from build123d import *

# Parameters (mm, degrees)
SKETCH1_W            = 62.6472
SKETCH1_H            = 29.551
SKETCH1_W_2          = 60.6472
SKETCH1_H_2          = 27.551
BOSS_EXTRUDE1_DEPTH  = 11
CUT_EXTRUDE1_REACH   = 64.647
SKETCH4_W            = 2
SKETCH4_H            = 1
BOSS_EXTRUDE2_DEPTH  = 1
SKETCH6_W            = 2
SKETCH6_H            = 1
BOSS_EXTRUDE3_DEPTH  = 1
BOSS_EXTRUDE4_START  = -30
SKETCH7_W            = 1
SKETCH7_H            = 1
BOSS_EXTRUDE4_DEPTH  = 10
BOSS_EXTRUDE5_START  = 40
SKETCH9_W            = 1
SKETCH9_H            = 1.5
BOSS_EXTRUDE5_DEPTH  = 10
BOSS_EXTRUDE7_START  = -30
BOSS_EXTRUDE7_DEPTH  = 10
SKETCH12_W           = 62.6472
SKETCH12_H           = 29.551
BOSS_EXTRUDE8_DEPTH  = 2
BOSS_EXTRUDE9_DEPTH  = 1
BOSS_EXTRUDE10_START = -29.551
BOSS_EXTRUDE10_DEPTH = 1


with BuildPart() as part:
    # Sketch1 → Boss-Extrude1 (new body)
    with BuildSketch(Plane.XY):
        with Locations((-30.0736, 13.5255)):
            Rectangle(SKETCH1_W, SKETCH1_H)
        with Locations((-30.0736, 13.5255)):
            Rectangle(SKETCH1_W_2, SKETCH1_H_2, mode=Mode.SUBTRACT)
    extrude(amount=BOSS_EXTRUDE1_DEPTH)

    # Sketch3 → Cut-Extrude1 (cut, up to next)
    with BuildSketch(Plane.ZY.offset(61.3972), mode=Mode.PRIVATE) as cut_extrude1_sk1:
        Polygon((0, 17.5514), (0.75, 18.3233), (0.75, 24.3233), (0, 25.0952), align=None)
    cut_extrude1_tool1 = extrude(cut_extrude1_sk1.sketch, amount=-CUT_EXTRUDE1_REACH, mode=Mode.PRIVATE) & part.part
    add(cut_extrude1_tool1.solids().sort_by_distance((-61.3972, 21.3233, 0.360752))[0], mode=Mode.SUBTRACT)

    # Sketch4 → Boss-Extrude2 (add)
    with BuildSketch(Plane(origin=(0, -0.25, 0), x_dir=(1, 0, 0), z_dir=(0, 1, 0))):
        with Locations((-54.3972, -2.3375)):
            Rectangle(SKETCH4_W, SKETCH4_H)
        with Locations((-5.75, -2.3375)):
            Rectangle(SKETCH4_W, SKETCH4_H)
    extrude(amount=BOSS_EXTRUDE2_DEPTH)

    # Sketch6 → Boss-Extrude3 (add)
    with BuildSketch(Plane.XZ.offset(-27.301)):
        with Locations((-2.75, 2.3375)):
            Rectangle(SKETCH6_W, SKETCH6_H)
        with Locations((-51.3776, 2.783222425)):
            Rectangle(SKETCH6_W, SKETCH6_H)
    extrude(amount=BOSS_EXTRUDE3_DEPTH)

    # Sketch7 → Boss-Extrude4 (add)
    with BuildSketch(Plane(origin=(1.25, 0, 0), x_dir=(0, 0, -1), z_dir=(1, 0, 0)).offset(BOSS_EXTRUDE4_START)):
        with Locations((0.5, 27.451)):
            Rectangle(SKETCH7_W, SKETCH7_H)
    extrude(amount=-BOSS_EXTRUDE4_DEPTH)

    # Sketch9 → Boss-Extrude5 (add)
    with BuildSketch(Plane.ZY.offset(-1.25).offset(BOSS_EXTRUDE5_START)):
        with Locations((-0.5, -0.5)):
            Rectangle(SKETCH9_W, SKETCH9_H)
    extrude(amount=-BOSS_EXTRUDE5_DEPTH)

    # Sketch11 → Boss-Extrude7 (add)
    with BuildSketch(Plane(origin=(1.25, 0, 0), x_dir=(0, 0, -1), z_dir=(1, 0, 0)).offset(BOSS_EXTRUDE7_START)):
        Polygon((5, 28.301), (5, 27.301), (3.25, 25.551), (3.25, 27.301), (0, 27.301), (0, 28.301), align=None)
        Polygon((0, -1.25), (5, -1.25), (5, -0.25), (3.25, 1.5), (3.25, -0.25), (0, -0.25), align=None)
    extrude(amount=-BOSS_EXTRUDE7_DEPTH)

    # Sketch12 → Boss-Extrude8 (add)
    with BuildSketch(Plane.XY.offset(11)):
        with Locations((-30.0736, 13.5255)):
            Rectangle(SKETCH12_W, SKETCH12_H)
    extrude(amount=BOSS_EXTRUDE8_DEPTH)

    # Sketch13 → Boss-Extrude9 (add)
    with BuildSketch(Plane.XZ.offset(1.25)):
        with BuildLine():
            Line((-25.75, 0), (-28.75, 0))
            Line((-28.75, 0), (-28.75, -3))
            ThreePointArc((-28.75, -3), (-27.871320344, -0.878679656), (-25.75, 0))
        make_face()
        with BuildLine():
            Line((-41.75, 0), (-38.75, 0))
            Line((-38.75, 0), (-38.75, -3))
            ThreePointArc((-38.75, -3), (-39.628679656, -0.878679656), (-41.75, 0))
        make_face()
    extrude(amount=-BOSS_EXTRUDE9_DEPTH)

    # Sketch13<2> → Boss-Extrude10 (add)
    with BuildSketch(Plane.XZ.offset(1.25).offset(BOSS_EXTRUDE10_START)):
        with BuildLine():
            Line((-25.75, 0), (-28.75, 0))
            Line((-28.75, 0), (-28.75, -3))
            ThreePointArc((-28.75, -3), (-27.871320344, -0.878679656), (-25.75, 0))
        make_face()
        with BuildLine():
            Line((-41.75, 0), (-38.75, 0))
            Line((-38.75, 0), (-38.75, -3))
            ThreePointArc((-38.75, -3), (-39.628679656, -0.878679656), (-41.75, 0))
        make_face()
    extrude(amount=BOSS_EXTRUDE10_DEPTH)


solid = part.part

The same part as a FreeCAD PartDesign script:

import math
import FreeCAD as App
import Part
import Sketcher
from FreeCAD import Vector
Q = App.Units.Quantity


def add_polygon(sketch, points):
    """Adds a closed chain of lines whose ends are joined by coincident constraints."""
    first, n = sketch.GeometryCount, len(points)
    for a, b in zip(points, points[1:] + points[:1]):
        sketch.addGeometry(Part.LineSegment(App.Vector(*a, 0), App.Vector(*b, 0)), False)
    for i in range(n):
        sketch.addConstraint(Sketcher.Constraint("Coincident", first + i, 2, first + (i + 1) % n, 1))

doc = App.newDocument("Part")
params = doc.addObject("Spreadsheet::Sheet", "Params")
for row, (alias, value) in enumerate([
    ("pad1_length", "11 mm"),
    ("sketch2_width", "6 mm"),
    ("sketch3_width", "2 mm"),
    ("sketch3_height", "1 mm"),
    ("pad2_length", "1 mm"),
    ("sketch4_width", "2 mm"),
    ("sketch4_height", "1 mm"),
    ("pad3_length", "1 mm"),
    ("sketch5_width", "1 mm"),
    ("pad4_length", "10 mm"),
    ("sketch6_height", "1 mm"),
    ("sketch6_width", "1.5 mm"),
    ("pad5_length", "10 mm"),
    ("sketch7_width", "1 mm"),
    ("sketch7_height", "5 mm"),
    ("sketch7_width2", "1.75 mm"),
    ("pad6_length", "10 mm"),
    ("pad7_length", "2 mm"),
    ("sketch9_radius", "3 mm"),
    ("pad8_length", "1 mm"),
    ("sketch10_radius", "3 mm"),
    ("pad9_length", "1 mm"),
], start=1):
    params.set(f"A{row}", alias)
    params.set(f"B{row}", "=" + value)
    params.setAlias(f"B{row}", alias)

body = doc.addObject("PartDesign::Body", "Body")

# Sketch on XY plane
sketch1 = body.newObject("Sketcher::SketchObject", "Sketch")
sketch1.AttachmentSupport = (doc.getObject("XY_Plane"), [""])
sketch1.MapMode = "FlatFace"
add_polygon(sketch1, [(-61, 28), (-61, -1), (1, -1), (1, 28)])  # lines 0-3
add_polygon(sketch1, [(0, 0), (-60, 0), (-60, 27), (0, 27)])  # lines 4-7
sketch1.addConstraint(Sketcher.Constraint("Vertical", 0))
sketch1.addConstraint(Sketcher.Constraint("Horizontal", 1))
sketch1.addConstraint(Sketcher.Constraint("Vertical", 2))
sketch1.addConstraint(Sketcher.Constraint("Horizontal", 3))
sketch1.addConstraint(Sketcher.Constraint("Horizontal", 4))
sketch1.addConstraint(Sketcher.Constraint("Vertical", 5))
sketch1.addConstraint(Sketcher.Constraint("Horizontal", 6))
sketch1.addConstraint(Sketcher.Constraint("Vertical", 7))
sketch1.addConstraint(Sketcher.Constraint("DistanceX", 0, 2, 4, 2, Q("1 mm")))
sketch1.addConstraint(Sketcher.Constraint("DistanceY", 0, 2, 4, 2, Q("1 mm")))
sketch1.addConstraint(Sketcher.Constraint("DistanceY", 5, 2, 3, 2, Q("1 mm")))
sketch1.addConstraint(Sketcher.Constraint("DistanceX", 6, 2, 2, 2, Q("1 mm")))
sketch1.addConstraint(Sketcher.Constraint("DistanceY", 0, 2, 0, 1, Q("29.551 mm")))
sketch1.addConstraint(Sketcher.Constraint("DistanceY", 0, 2, -1, 1, Q("1.25 mm")))
sketch1.addConstraint(Sketcher.Constraint("DistanceX", -1, 1, 1, 2, Q("1.25 mm")))
sketch1.addConstraint(Sketcher.Constraint("DistanceX", 1, 1, 1, 2, Q("62.6472 mm")))
pad1 = body.newObject("PartDesign::Pad", "Pad")
pad1.Profile = sketch1
pad1.setExpression("Length", "Params.pad1_length")

# Sketch on YZ plane
sketch2 = body.newObject("Sketcher::SketchObject", "Sketch001")
sketch2.AttachmentSupport = (doc.getObject("YZ_Plane"), [""])
sketch2.MapMode = "FlatFace"
sketch2.AttachmentOffset = App.Placement(Vector(0, 0, -61.3972), App.Rotation())
add_polygon(sketch2, [(17.6, 0), (18.3, 0.8), (24.3, 0.8), (25.1, 0)])  # lines 0-3
sketch2.addConstraint(Sketcher.Constraint("Horizontal", 1))
sketch2.addConstraint(Sketcher.Constraint("Horizontal", 3))
sketch2.addConstraint(Sketcher.Constraint("PointOnObject", 2, 2, -1))
sketch2.addConstraint(Sketcher.Constraint("Equal", 0, 2))
sketch2.addConstraint(Sketcher.Constraint("DistanceX", 1, 1, 1, 2, Q("6 mm")))
sketch2.addConstraint(Sketcher.Constraint("DistanceY", -1, 1, 0, 2, Q("0.75 mm")))
sketch2.addConstraint(Sketcher.Constraint("DistanceX", 3, 2, 3, 1, Q("7.5438 mm")))
sketch2.addConstraint(Sketcher.Constraint("DistanceX", -1, 1, 0, 2, Q("18.3233 mm")))
sketch2.setExpression("Constraints[8]", "Params.sketch2_width")
pocket1 = body.newObject("PartDesign::Pocket", "Pocket")
pocket1.Profile = sketch2
pocket1.Type = "UpToFirst"
pocket1.Reversed = True

# Sketch on XZ plane
sketch3 = body.newObject("Sketcher::SketchObject", "Sketch002")
sketch3.AttachmentSupport = (doc.getObject("XZ_Plane"), [""])
sketch3.MapMode = "FlatFace"
sketch3.AttachmentOffset = App.Placement(Vector(0, 0, 0.25), App.Rotation())
add_polygon(sketch3, [(-55.4, 1.8), (-55.4, 2.8), (-53.4, 2.8), (-53.4, 1.8)])  # lines 0-3
add_polygon(sketch3, [(-6.8, 1.8), (-6.8, 2.8), (-4.8, 2.8), (-4.8, 1.8)])  # lines 4-7
sketch3.addConstraint(Sketcher.Constraint("Vertical", 0))
sketch3.addConstraint(Sketcher.Constraint("Horizontal", 1))
sketch3.addConstraint(Sketcher.Constraint("Vertical", 2))
sketch3.addConstraint(Sketcher.Constraint("Horizontal", 3))
sketch3.addConstraint(Sketcher.Constraint("Vertical", 4))
sketch3.addConstraint(Sketcher.Constraint("Horizontal", 5))
sketch3.addConstraint(Sketcher.Constraint("Vertical", 6))
sketch3.addConstraint(Sketcher.Constraint("Horizontal", 7))
sketch3.addConstraint(Sketcher.Constraint("Horizontal", 1, 2, 4, 2))
sketch3.addConstraint(Sketcher.Constraint("Horizontal", 3, 2, 6, 2))
sketch3.addConstraint(Sketcher.Constraint("Equal", 3, 5))
sketch3.addConstraint(Sketcher.Constraint("DistanceX", 1, 1, 1, 2, Q("2 mm")))
sketch3.addConstraint(Sketcher.Constraint("DistanceY", 0, 1, 0, 2, Q("1 mm")))
sketch3.addConstraint(Sketcher.Constraint("DistanceX", 4, 2, -1, 1, Q("6.75 mm")))
sketch3.addConstraint(Sketcher.Constraint("DistanceX", 0, 2, -1, 1, Q("55.3972 mm")))
sketch3.addConstraint(Sketcher.Constraint("DistanceY", -1, 1, 0, 2, Q("2.8375 mm")))
sketch3.setExpression("Constraints[19]", "Params.sketch3_width")
sketch3.setExpression("Constraints[20]", "Params.sketch3_height")
pad2 = body.newObject("PartDesign::Pad", "Pad001")
pad2.Profile = sketch3
pad2.setExpression("Length", "Params.pad2_length")
pad2.Reversed = True

# Sketch on XZ plane
sketch4 = body.newObject("Sketcher::SketchObject", "Sketch003")
sketch4.AttachmentSupport = (doc.getObject("XZ_Plane"), [""])
sketch4.MapMode = "FlatFace"
sketch4.AttachmentOffset = App.Placement(Vector(0, 0, -27.301), App.Rotation())
add_polygon(sketch4, [(-3.8, 2.8), (-3.8, 1.8), (-1.8, 1.8), (-1.8, 2.8)])  # lines 0-3
add_polygon(sketch4, [(-52.4, 3.3), (-52.4, 2.3), (-50.4, 2.3), (-50.4, 3.3)])  # lines 4-7
sketch4.addConstraint(Sketcher.Constraint("Vertical", 0))
sketch4.addConstraint(Sketcher.Constraint("Horizontal", 1))
sketch4.addConstraint(Sketcher.Constraint("Vertical", 2))
sketch4.addConstraint(Sketcher.Constraint("Horizontal", 3))
sketch4.addConstraint(Sketcher.Constraint("Vertical", 4))
sketch4.addConstraint(Sketcher.Constraint("Horizontal", 5))
sketch4.addConstraint(Sketcher.Constraint("Vertical", 6))
sketch4.addConstraint(Sketcher.Constraint("Horizontal", 7))
sketch4.addConstraint(Sketcher.Constraint("Equal", 3, 5))
sketch4.addConstraint(Sketcher.Constraint("Equal", 2, 4))
sketch4.addConstraint(Sketcher.Constraint("DistanceX", 1, 1, 1, 2, Q("2 mm")))
sketch4.addConstraint(Sketcher.Constraint("DistanceY", 0, 2, 0, 1, Q("1 mm")))
sketch4.addConstraint(Sketcher.Constraint("DistanceX", 0, 2, -1, 1, Q("3.75 mm")))
sketch4.addConstraint(Sketcher.Constraint("DistanceY", -1, 1, 0, 2, Q("1.8375 mm")))
sketch4.addConstraint(Sketcher.Constraint("DistanceX", 4, 2, -1, 1, Q("52.3776 mm")))
sketch4.addConstraint(Sketcher.Constraint("DistanceY", -1, 1, 4, 2, Q("2.283222 mm")))
sketch4.setExpression("Constraints[18]", "Params.sketch4_width")
sketch4.setExpression("Constraints[19]", "Params.sketch4_height")
pad3 = body.newObject("PartDesign::Pad", "Pad002")
pad3.Profile = sketch4
pad3.setExpression("Length", "Params.pad3_length")

# Sketch on YZ plane
sketch5 = body.newObject("Sketcher::SketchObject", "Sketch004")
sketch5.AttachmentSupport = (doc.getObject("YZ_Plane"), [""])
sketch5.MapMode = "FlatFace"
sketch5.AttachmentOffset = App.Placement(Vector(0, 0, -28.75), App.Rotation())
add_polygon(sketch5, [(28, 0), (27, 0), (27, -1), (28, -1)])  # lines 0-3
sketch5.addConstraint(Sketcher.Constraint("Horizontal", 0))
sketch5.addConstraint(Sketcher.Constraint("Vertical", 1))
sketch5.addConstraint(Sketcher.Constraint("Horizontal", 2))
sketch5.addConstraint(Sketcher.Constraint("Vertical", 3))
sketch5.addConstraint(Sketcher.Constraint("PointOnObject", 0, 2, -1))
sketch5.addConstraint(Sketcher.Constraint("Equal", 2, 1))
sketch5.addConstraint(Sketcher.Constraint("DistanceX", 0, 2, 0, 1, Q("1 mm")))
sketch5.addConstraint(Sketcher.Constraint("DistanceX", -1, 1, 0, 2, Q("26.951 mm")))
sketch5.setExpression("Constraints[10]", "Params.sketch5_width")
pad4 = body.newObject("PartDesign::Pad", "Pad003")
pad4.Profile = sketch5
pad4.setExpression("Length", "Params.pad4_length")
pad4.Reversed = True

# Sketch on YZ plane
sketch6 = body.newObject("Sketcher::SketchObject", "Sketch005")
sketch6.AttachmentSupport = (doc.getObject("YZ_Plane"), [""])
sketch6.MapMode = "FlatFace"
sketch6.AttachmentOffset = App.Placement(Vector(0, 0, -38.75), App.Rotation())
add_polygon(sketch6, [(0.2, -1), (-1.2, -1), (-1.2, 0), (0.2, 0)])  # lines 0-3
sketch6.addConstraint(Sketcher.Constraint("Horizontal", 0))
sketch6.addConstraint(Sketcher.Constraint("Vertical", 1))
sketch6.addConstraint(Sketcher.Constraint("Horizontal", 2))
sketch6.addConstraint(Sketcher.Constraint("Vertical", 3))
sketch6.addConstraint(Sketcher.Constraint("PointOnObject", 1, 2, -1))
sketch6.addConstraint(Sketcher.Constraint("DistanceY", 1, 1, 1, 2, Q("1 mm")))
sketch6.addConstraint(Sketcher.Constraint("DistanceX", 0, 2, 0, 1, Q("1.5 mm")))
sketch6.addConstraint(Sketcher.Constraint("DistanceX", 0, 2, -1, 1, Q("1.25 mm")))
sketch6.setExpression("Constraints[9]", "Params.sketch6_height")
sketch6.setExpression("Constraints[10]", "Params.sketch6_width")
pad5 = body.newObject("PartDesign::Pad", "Pad004")
pad5.Profile = sketch6
pad5.setExpression("Length", "Params.pad5_length")

# Sketch on YZ plane
sketch7 = body.newObject("Sketcher::SketchObject", "Sketch006")
sketch7.AttachmentSupport = (doc.getObject("YZ_Plane"), [""])
sketch7.MapMode = "FlatFace"
sketch7.AttachmentOffset = App.Placement(Vector(0, 0, -28.75), App.Rotation())
add_polygon(sketch7, [(27.3, -5), (28.3, -5), (28.3, 0), (27.3, 0), (27.3, -3.2), (25.6, -3.2)])  # lines 0-5
add_polygon(sketch7, [(-1.2, 0), (-1.2, -5), (-0.2, -5), (1.5, -3.2), (-0.2, -3.2), (-0.2, 0)])  # lines 6-11
sketch7.addConstraint(Sketcher.Constraint("Horizontal", 0))
sketch7.addConstraint(Sketcher.Constraint("Vertical", 1))
sketch7.addConstraint(Sketcher.Constraint("Horizontal", 2))
sketch7.addConstraint(Sketcher.Constraint("Vertical", 3))
sketch7.addConstraint(Sketcher.Constraint("Horizontal", 4))
sketch7.addConstraint(Sketcher.Constraint("Vertical", 6))
sketch7.addConstraint(Sketcher.Constraint("Horizontal", 7))
sketch7.addConstraint(Sketcher.Constraint("Horizontal", 9))
sketch7.addConstraint(Sketcher.Constraint("Vertical", 10))
sketch7.addConstraint(Sketcher.Constraint("Horizontal", 11))
sketch7.addConstraint(Sketcher.Constraint("PointOnObject", 1, 2, -1))
sketch7.addConstraint(Sketcher.Constraint("PointOnObject", 10, 2, -1))
sketch7.addConstraint(Sketcher.Constraint("Perpendicular", 5, 8))
sketch7.addConstraint(Sketcher.Constraint("Horizontal", 5, 2, 6, 2))
sketch7.addConstraint(Sketcher.Constraint("Horizontal", 4, 2, 8, 2))
sketch7.addConstraint(Sketcher.Constraint("Vertical", 3, 2, 5, 2))
sketch7.addConstraint(Sketcher.Constraint("Vertical", 7, 2, 9, 2))
sketch7.addConstraint(Sketcher.Constraint("Equal", 2, 7))
sketch7.addConstraint(Sketcher.Constraint("Equal", 4, 9))
sketch7.addConstraint(Sketcher.Constraint("DistanceX", 0, 1, 0, 2, Q("1 mm")))
sketch7.addConstraint(Sketcher.Constraint("DistanceY", 1, 1, 1, 2, Q("5 mm")))
sketch7.addConstraint(Sketcher.Constraint("DistanceX", 4, 2, 4, 1, Q("1.75 mm")))
sketch7.addConstraint(Sketcher.Constraint("DistanceX", -1, 1, 8, 2, Q("1.5 mm")))
sketch7.addConstraint(Sketcher.Constraint("DistanceX", -1, 1, 0, 2, Q("28.301 mm")))
sketch7.setExpression("Constraints[31]", "Params.sketch7_width")
sketch7.setExpression("Constraints[32]", "Params.sketch7_height")
sketch7.setExpression("Constraints[33]", "Params.sketch7_width2")
pad6 = body.newObject("PartDesign::Pad", "Pad005")
pad6.Profile = sketch7
pad6.setExpression("Length", "Params.pad6_length")
pad6.Reversed = True

# Sketch on XY plane
sketch8 = body.newObject("Sketcher::SketchObject", "Sketch007")
sketch8.AttachmentSupport = (doc.getObject("XY_Plane"), [""])
sketch8.MapMode = "FlatFace"
sketch8.AttachmentOffset = App.Placement(Vector(0, 0, 11), App.Rotation())
add_polygon(sketch8, [(-61, 28), (-61, -1), (1, -1), (1, 28)])  # lines 0-3
sketch8.addConstraint(Sketcher.Constraint("Vertical", 0))
sketch8.addConstraint(Sketcher.Constraint("Horizontal", 1))
sketch8.addConstraint(Sketcher.Constraint("Vertical", 2))
sketch8.addConstraint(Sketcher.Constraint("Horizontal", 3))
sketch8.addConstraint(Sketcher.Constraint("DistanceY", 0, 2, 0, 1, Q("29.551 mm")))
sketch8.addConstraint(Sketcher.Constraint("DistanceY", 0, 2, -1, 1, Q("1.25 mm")))
sketch8.addConstraint(Sketcher.Constraint("DistanceX", -1, 1, 1, 2, Q("1.25 mm")))
sketch8.addConstraint(Sketcher.Constraint("DistanceX", 1, 1, 1, 2, Q("62.6472 mm")))
pad7 = body.newObject("PartDesign::Pad", "Pad006")
pad7.Profile = sketch8
pad7.setExpression("Length", "Params.pad7_length")

# Sketch on XZ plane
sketch9 = body.newObject("Sketcher::SketchObject", "Sketch008")
sketch9.AttachmentSupport = (doc.getObject("XZ_Plane"), [""])
sketch9.MapMode = "FlatFace"
sketch9.AttachmentOffset = App.Placement(Vector(0, 0, 1.25), App.Rotation())
sketch9.addGeometry(Part.LineSegment(Vector(-25.8, 0, 0), Vector(-28.8, 0, 0)), False)
sketch9.addGeometry(Part.LineSegment(Vector(-28.8, 0, 0), Vector(-28.8, -3, 0)), False)
sketch9.addGeometry(Part.ArcOfCircle(Part.Circle(Vector(-25.8, -3, 0), Vector(0, 0, 1), 3), math.radians(90), math.radians(180)), False)
sketch9.addGeometry(Part.LineSegment(Vector(-38.8, 0, 0), Vector(-41.8, 0, 0)), False)
sketch9.addGeometry(Part.ArcOfCircle(Part.Circle(Vector(-41.7, -3, 0), Vector(0, 0, 1), 3), math.radians(0), math.radians(90)), False)
sketch9.addGeometry(Part.LineSegment(Vector(-38.8, -3, 0), Vector(-38.8, 0, 0)), False)
sketch9.addConstraint(Sketcher.Constraint("Coincident", 0, 2, 1, 1))
sketch9.addConstraint(Sketcher.Constraint("Tangent", 1, 2, 2, 2))
sketch9.addConstraint(Sketcher.Constraint("Tangent", 2, 1, 0, 1))
sketch9.addConstraint(Sketcher.Constraint("Tangent", 3, 2, 4, 2))
sketch9.addConstraint(Sketcher.Constraint("Tangent", 4, 1, 5, 1))
sketch9.addConstraint(Sketcher.Constraint("Coincident", 5, 2, 3, 1))
sketch9.addConstraint(Sketcher.Constraint("Horizontal", 0))
sketch9.addConstraint(Sketcher.Constraint("Vertical", 1))
sketch9.addConstraint(Sketcher.Constraint("Horizontal", 3))
sketch9.addConstraint(Sketcher.Constraint("Vertical", 5))
sketch9.addConstraint(Sketcher.Constraint("Equal", 2, 4))
sketch9.addConstraint(Sketcher.Constraint("PointOnObject", 0, 2, -1))
sketch9.addConstraint(Sketcher.Constraint("PointOnObject", 3, 2, -1))
sketch9.addConstraint(Sketcher.Constraint("Radius", 2, Q("3 mm")))
sketch9.addConstraint(Sketcher.Constraint("DistanceX", 4, 3, 2, 3, Q("16 mm")))
sketch9.addConstraint(Sketcher.Constraint("DistanceX", 2, 3, -1, 1, Q("25.75 mm")))
sketch9.setExpression("Constraints[13]", "Params.sketch9_radius")
pad8 = body.newObject("PartDesign::Pad", "Pad007")
pad8.Profile = sketch9
pad8.setExpression("Length", "Params.pad8_length")
pad8.Reversed = True

# Sketch on XZ plane
sketch10 = body.newObject("Sketcher::SketchObject", "Sketch009")
sketch10.AttachmentSupport = (doc.getObject("XZ_Plane"), [""])
sketch10.MapMode = "FlatFace"
sketch10.AttachmentOffset = App.Placement(Vector(0, 0, -28.301), App.Rotation())
sketch10.addGeometry(Part.LineSegment(Vector(-25.8, 0, 0), Vector(-28.8, 0, 0)), False)
sketch10.addGeometry(Part.LineSegment(Vector(-28.8, 0, 0), Vector(-28.8, -3, 0)), False)
sketch10.addGeometry(Part.ArcOfCircle(Part.Circle(Vector(-25.8, -3, 0), Vector(0, 0, 1), 3), math.radians(90), math.radians(180)), False)
sketch10.addGeometry(Part.LineSegment(Vector(-38.8, 0, 0), Vector(-41.8, 0, 0)), False)
sketch10.addGeometry(Part.ArcOfCircle(Part.Circle(Vector(-41.7, -3, 0), Vector(0, 0, 1), 3), math.radians(0), math.radians(90)), False)
sketch10.addGeometry(Part.LineSegment(Vector(-38.8, -3, 0), Vector(-38.8, 0, 0)), False)
sketch10.addConstraint(Sketcher.Constraint("Coincident", 0, 2, 1, 1))
sketch10.addConstraint(Sketcher.Constraint("Tangent", 1, 2, 2, 2))
sketch10.addConstraint(Sketcher.Constraint("Tangent", 2, 1, 0, 1))
sketch10.addConstraint(Sketcher.Constraint("Tangent", 3, 2, 4, 2))
sketch10.addConstraint(Sketcher.Constraint("Tangent", 4, 1, 5, 1))
sketch10.addConstraint(Sketcher.Constraint("Coincident", 5, 2, 3, 1))
sketch10.addConstraint(Sketcher.Constraint("Horizontal", 0))
sketch10.addConstraint(Sketcher.Constraint("Vertical", 1))
sketch10.addConstraint(Sketcher.Constraint("Horizontal", 3))
sketch10.addConstraint(Sketcher.Constraint("Vertical", 5))
sketch10.addConstraint(Sketcher.Constraint("Equal", 2, 4))
sketch10.addConstraint(Sketcher.Constraint("PointOnObject", 0, 2, -1))
sketch10.addConstraint(Sketcher.Constraint("PointOnObject", 3, 2, -1))
sketch10.addConstraint(Sketcher.Constraint("Radius", 2, Q("3 mm")))
sketch10.addConstraint(Sketcher.Constraint("DistanceX", 4, 3, 2, 3, Q("16 mm")))
sketch10.addConstraint(Sketcher.Constraint("DistanceX", 2, 3, -1, 1, Q("25.75 mm")))
sketch10.setExpression("Constraints[13]", "Params.sketch10_radius")
pad9 = body.newObject("PartDesign::Pad", "Pad008")
pad9.Profile = sketch10
pad9.setExpression("Length", "Params.pad9_length")

doc.recompute()
